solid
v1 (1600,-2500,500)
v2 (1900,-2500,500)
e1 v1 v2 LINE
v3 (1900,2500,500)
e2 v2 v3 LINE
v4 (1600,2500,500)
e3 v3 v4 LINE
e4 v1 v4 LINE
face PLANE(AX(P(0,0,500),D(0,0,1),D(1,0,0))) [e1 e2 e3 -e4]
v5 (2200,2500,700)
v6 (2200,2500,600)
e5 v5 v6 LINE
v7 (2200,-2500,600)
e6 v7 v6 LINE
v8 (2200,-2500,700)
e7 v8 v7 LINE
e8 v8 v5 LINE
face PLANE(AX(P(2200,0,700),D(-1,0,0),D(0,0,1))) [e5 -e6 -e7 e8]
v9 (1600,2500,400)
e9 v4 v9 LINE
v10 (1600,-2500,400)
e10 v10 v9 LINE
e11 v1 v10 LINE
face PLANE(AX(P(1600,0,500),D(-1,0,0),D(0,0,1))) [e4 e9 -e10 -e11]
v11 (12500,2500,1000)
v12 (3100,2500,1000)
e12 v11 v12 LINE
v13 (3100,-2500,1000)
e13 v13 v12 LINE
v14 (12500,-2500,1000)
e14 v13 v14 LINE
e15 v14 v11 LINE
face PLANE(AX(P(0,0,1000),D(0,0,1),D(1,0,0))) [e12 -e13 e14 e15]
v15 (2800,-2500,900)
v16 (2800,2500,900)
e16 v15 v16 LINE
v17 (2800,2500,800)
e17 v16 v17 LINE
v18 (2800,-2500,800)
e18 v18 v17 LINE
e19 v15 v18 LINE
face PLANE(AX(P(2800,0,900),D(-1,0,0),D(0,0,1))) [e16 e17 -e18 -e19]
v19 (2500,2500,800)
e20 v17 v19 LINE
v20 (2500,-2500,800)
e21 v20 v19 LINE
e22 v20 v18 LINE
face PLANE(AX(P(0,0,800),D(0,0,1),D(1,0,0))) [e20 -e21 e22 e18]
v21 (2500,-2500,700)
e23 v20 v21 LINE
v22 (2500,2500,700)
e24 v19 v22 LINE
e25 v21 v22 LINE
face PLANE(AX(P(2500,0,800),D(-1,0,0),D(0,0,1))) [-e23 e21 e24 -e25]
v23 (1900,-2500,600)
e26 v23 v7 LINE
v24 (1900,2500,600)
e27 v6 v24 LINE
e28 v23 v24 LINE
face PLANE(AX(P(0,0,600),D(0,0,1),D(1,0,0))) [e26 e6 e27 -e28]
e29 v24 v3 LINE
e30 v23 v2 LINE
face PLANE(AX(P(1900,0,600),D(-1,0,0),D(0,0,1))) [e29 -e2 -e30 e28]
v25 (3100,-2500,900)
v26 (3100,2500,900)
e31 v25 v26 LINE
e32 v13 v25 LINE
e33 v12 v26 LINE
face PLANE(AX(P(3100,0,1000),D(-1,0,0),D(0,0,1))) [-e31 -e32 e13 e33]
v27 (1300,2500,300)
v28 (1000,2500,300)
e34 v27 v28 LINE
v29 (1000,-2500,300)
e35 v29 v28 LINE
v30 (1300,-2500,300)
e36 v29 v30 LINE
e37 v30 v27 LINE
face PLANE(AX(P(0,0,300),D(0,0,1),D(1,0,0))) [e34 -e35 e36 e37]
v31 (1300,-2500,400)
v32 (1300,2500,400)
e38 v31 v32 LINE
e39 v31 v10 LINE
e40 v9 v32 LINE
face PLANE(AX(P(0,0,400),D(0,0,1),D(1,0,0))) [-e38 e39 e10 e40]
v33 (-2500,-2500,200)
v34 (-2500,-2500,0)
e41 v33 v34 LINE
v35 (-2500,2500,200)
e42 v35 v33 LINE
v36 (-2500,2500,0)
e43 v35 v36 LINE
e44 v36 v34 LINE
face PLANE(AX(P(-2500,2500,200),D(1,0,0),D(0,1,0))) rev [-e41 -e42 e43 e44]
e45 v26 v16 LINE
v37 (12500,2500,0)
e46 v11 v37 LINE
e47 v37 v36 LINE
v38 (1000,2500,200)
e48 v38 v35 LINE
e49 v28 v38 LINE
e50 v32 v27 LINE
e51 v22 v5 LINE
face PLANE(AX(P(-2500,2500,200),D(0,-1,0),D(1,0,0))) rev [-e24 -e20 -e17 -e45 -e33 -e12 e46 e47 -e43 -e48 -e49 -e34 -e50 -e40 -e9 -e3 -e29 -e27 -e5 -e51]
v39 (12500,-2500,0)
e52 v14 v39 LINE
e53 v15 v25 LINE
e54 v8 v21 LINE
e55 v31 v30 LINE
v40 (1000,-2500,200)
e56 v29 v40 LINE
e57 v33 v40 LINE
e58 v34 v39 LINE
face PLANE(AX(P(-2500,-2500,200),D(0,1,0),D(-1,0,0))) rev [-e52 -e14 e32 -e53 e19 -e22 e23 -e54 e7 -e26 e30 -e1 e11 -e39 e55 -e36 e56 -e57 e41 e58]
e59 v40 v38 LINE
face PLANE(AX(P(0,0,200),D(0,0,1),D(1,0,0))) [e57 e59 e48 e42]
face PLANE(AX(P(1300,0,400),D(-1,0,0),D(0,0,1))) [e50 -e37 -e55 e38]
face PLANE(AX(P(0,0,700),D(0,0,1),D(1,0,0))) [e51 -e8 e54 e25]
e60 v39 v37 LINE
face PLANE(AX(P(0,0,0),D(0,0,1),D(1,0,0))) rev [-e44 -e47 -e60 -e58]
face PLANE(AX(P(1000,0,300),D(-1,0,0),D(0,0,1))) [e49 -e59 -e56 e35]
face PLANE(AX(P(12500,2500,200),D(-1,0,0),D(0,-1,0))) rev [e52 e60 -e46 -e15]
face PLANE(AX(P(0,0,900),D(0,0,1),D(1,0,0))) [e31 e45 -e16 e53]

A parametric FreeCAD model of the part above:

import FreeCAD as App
import Part
import Sketcher
from FreeCAD import Vector


def add_polygon(sketch, points):
    """Adds a closed chain of lines whose ends are joined by coincident constraints."""
    first, n = sketch.GeometryCount, len(points)
    for a, b in zip(points, points[1:] + points[:1]):
        sketch.addGeometry(Part.LineSegment(App.Vector(*a, 0), App.Vector(*b, 0)), False)
    for i in range(n):
        sketch.addConstraint(Sketcher.Constraint("Coincident", first + i, 2, first + (i + 1) % n, 1))

doc = App.newDocument("Part")
params = doc.addObject("Spreadsheet::Sheet", "Params")
for row, (alias, value) in enumerate([
    ("sketch1_width", "15000 mm"),
    ("sketch1_height", "5000 mm"),
    ("pad1_length", "200 mm"),
    ("sketch2_width", "300 mm"),
    ("sketch2_height", "5000 mm"),
    ("pad2_length", "100 mm"),
    ("sketch3_width", "300 mm"),
    ("sketch3_height", "5000 mm"),
    ("pad3_length", "200 mm"),
    ("sketch4_width", "300 mm"),
    ("sketch4_height", "5000 mm"),
    ("pad4_length", "300 mm"),
    ("sketch5_width", "300 mm"),
    ("sketch5_height", "5000 mm"),
    ("pad5_length", "400 mm"),
    ("sketch6_width", "300 mm"),
    ("sketch6_height", "5000 mm"),
    ("pad6_length", "500 mm"),
    ("sketch7_width", "300 mm"),
    ("sketch7_height", "5000 mm"),
    ("pad7_length", "600 mm"),
    ("sketch8_width", "300 mm"),
    ("sketch8_height", "5000 mm"),
    ("pad8_length", "700 mm"),
    ("sketch9_width", "300 mm"),
    ("sketch9_height", "5000 mm"),
    ("pad9_length", "800 mm"),
    ("sketch10_width", "9100 mm"),
    ("sketch10_height", "5000 mm"),
    ("pad10_length", "800 mm"),
], start=1):
    params.set(f"A{row}", alias)
    params.set(f"B{row}", "=" + value)
    params.setAlias(f"B{row}", alias)

body = doc.addObject("PartDesign::Body", "Body")

# Sketch on XY plane
sketch1 = doc.addObject("Sketcher::SketchObject", "Sketch")
body.addObject(sketch1)
sketch1.AttachmentSupport = (doc.XY_Plane, [""])
sketch1.MapMode = "FlatFace"
add_polygon(sketch1, [(-2500, 2500), (-2500, -2500), (12500, -2500), (12500, 2500)])  # lines 0-3
sketch1.addConstraint(Sketcher.Constraint("Vertical", 0))
sketch1.addConstraint(Sketcher.Constraint("Horizontal", 1))
sketch1.addConstraint(Sketcher.Constraint("Vertical", 2))
sketch1.addConstraint(Sketcher.Constraint("Horizontal", 3))
sketch1.addConstraint(Sketcher.Constraint("DistanceX", 1, 1, 1, 2, 15000.0))
sketch1.addConstraint(Sketcher.Constraint("DistanceY", 0, 2, 0, 1, 5000.0))
sketch1.addConstraint(Sketcher.Constraint("DistanceX", 0, 2, -1, 1, 2500.0))
sketch1.addConstraint(Sketcher.Constraint("DistanceY", 0, 2, -1, 1, 2500.0))
sketch1.setExpression("Constraints[8]", "Params.sketch1_width")
sketch1.setExpression("Constraints[9]", "Params.sketch1_height")
pad1 = doc.addObject("PartDesign::Pad", "Pad")
body.addObject(pad1)
pad1.Profile = sketch1
pad1.setExpression("Length", "Params.pad1_length")

# Sketch on XY plane
sketch2 = doc.addObject("Sketcher::SketchObject", "Sketch001")
body.addObject(sketch2)
sketch2.AttachmentSupport = (doc.XY_Plane, [""])
sketch2.MapMode = "FlatFace"
sketch2.AttachmentOffset = App.Placement(Vector(0, 0, 200), App.Rotation())
add_polygon(sketch2, [(1000, 2500), (1000, -2500), (1300, -2500), (1300, 2500)])  # lines 0-3
sketch2.addConstraint(Sketcher.Constraint("Vertical", 0))
sketch2.addConstraint(Sketcher.Constraint("Horizontal", 1))
sketch2.addConstraint(Sketcher.Constraint("Vertical", 2))
sketch2.addConstraint(Sketcher.Constraint("Horizontal", 3))
sketch2.addConstraint(Sketcher.Constraint("DistanceX", 1, 1, 1, 2, 300.0))
sketch2.addConstraint(Sketcher.Constraint("DistanceY", 0, 2, 0, 1, 5000.0))
sketch2.addConstraint(Sketcher.Constraint("DistanceX", -1, 1, 0, 2, 1000.0))
sketch2.addConstraint(Sketcher.Constraint("DistanceY", 0, 2, -1, 1, 2500.0))
sketch2.setExpression("Constraints[8]", "Params.sketch2_width")
sketch2.setExpression("Constraints[9]", "Params.sketch2_height")
pad2 = doc.addObject("PartDesign::Pad", "Pad001")
body.addObject(pad2)
pad2.Profile = sketch2
pad2.setExpression("Length", "Params.pad2_length")

# Sketch on XY plane
sketch3 = doc.addObject("Sketcher::SketchObject", "Sketch002")
body.addObject(sketch3)
sketch3.AttachmentSupport = (doc.XY_Plane, [""])
sketch3.MapMode = "FlatFace"
sketch3.AttachmentOffset = App.Placement(Vector(0, 0, 200), App.Rotation())
add_polygon(sketch3, [(1300, 2500), (1300, -2500), (1600, -2500), (1600, 2500)])  # lines 0-3
sketch3.addConstraint(Sketcher.Constraint("Vertical", 0))
sketch3.addConstraint(Sketcher.Constraint("Horizontal", 1))
sketch3.addConstraint(Sketcher.Constraint("Vertical", 2))
sketch3.addConstraint(Sketcher.Constraint("Horizontal", 3))
sketch3.addConstraint(Sketcher.Constraint("DistanceX", 1, 1, 1, 2, 300.0))
sketch3.addConstraint(Sketcher.Constraint("DistanceY", 0, 2, 0, 1, 5000.0))
sketch3.addConstraint(Sketcher.Constraint("DistanceX", -1, 1, 0, 2, 1300.0))
sketch3.addConstraint(Sketcher.Constraint("DistanceY", 0, 2, -1, 1, 2500.0))
sketch3.setExpression("Constraints[8]", "Params.sketch3_width")
sketch3.setExpression("Constraints[9]", "Params.sketch3_height")
pad3 = doc.addObject("PartDesign::Pad", "Pad002")
body.addObject(pad3)
pad3.Profile = sketch3
pad3.setExpression("Length", "Params.pad3_length")

# Sketch on XY plane
sketch4 = doc.addObject("Sketcher::SketchObject", "Sketch003")
body.addObject(sketch4)
sketch4.AttachmentSupport = (doc.XY_Plane, [""])
sketch4.MapMode = "FlatFace"
sketch4.AttachmentOffset = App.Placement(Vector(0, 0, 200), App.Rotation())
add_polygon(sketch4, [(1600, 2500), (1600, -2500), (1900, -2500), (1900, 2500)])  # lines 0-3
sketch4.addConstraint(Sketcher.Constraint("Vertical", 0))
sketch4.addConstraint(Sketcher.Constraint("Horizontal", 1))
sketch4.addConstraint(Sketcher.Constraint("Vertical", 2))
sketch4.addConstraint(Sketcher.Constraint("Horizontal", 3))
sketch4.addConstraint(Sketcher.Constraint("DistanceX", 1, 1, 1, 2, 300.0))
sketch4.addConstraint(Sketcher.Constraint("DistanceY", 0, 2, 0, 1, 5000.0))
sketch4.addConstraint(Sketcher.Constraint("DistanceX", -1, 1, 0, 2, 1600.0))
sketch4.addConstraint(Sketcher.Constraint("DistanceY", 0, 2, -1, 1, 2500.0))
sketch4.setExpression("Constraints[8]", "Params.sketch4_width")
sketch4.setExpression("Constraints[9]", "Params.sketch4_height")
pad4 = doc.addObject("PartDesign::Pad", "Pad003")
body.addObject(pad4)
pad4.Profile = sketch4
pad4.setExpression("Length", "Params.pad4_length")

# Sketch on XY plane
sketch5 = doc.addObject("Sketcher::SketchObject", "Sketch004")
body.addObject(sketch5)
sketch5.AttachmentSupport = (doc.XY_Plane, [""])
sketch5.MapMode = "FlatFace"
sketch5.AttachmentOffset = App.Placement(Vector(0, 0, 200), App.Rotation())
add_polygon(sketch5, [(1900, 2500), (1900, -2500), (2200, -2500), (2200, 2500)])  # lines 0-3
sketch5.addConstraint(Sketcher.Constraint("Vertical", 0))
sketch5.addConstraint(Sketcher.Constraint("Horizontal", 1))
sketch5.addConstraint(Sketcher.Constraint("Vertical", 2))
sketch5.addConstraint(Sketcher.Constraint("Horizontal", 3))
sketch5.addConstraint(Sketcher.Constraint("DistanceX", 1, 1, 1, 2, 300.0))
sketch5.addConstraint(Sketcher.Constraint("DistanceY", 0, 2, 0, 1, 5000.0))
sketch5.addConstraint(Sketcher.Constraint("DistanceX", -1, 1, 0, 2, 1900.0))
sketch5.addConstraint(Sketcher.Constraint("DistanceY", 0, 2, -1, 1, 2500.0))
sketch5.setExpression("Constraints[8]", "Params.sketch5_width")
sketch5.setExpression("Constraints[9]", "Params.sketch5_height")
pad5 = doc.addObject("PartDesign::Pad", "Pad004")
body.addObject(pad5)
pad5.Profile = sketch5
pad5.setExpression("Length", "Params.pad5_length")

# Sketch on XY plane
sketch6 = doc.addObject("Sketcher::SketchObject", "Sketch005")
body.addObject(sketch6)
sketch6.AttachmentSupport = (doc.XY_Plane, [""])
sketch6.MapMode = "FlatFace"
sketch6.AttachmentOffset = App.Placement(Vector(0, 0, 200), App.Rotation())
add_polygon(sketch6, [(2200, 2500), (2200, -2500), (2500, -2500), (2500, 2500)])  # lines 0-3
sketch6.addConstraint(Sketcher.Constraint("Vertical", 0))
sketch6.addConstraint(Sketcher.Constraint("Horizontal", 1))
sketch6.addConstraint(Sketcher.Constraint("Vertical", 2))
sketch6.addConstraint(Sketcher.Constraint("Horizontal", 3))
sketch6.addConstraint(Sketcher.Constraint("DistanceX", 1, 1, 1, 2, 300.0))
sketch6.addConstraint(Sketcher.Constraint("DistanceY", 0, 2, 0, 1, 5000.0))
sketch6.addConstraint(Sketcher.Constraint("DistanceX", -1, 1, 0, 2, 2200.0))
sketch6.addConstraint(Sketcher.Constraint("DistanceY", 0, 2, -1, 1, 2500.0))
sketch6.setExpression("Constraints[8]", "Params.sketch6_width")
sketch6.setExpression("Constraints[9]", "Params.sketch6_height")
pad6 = doc.addObject("PartDesign::Pad", "Pad005")
body.addObject(pad6)
pad6.Profile = sketch6
pad6.setExpression("Length", "Params.pad6_length")

# Sketch on XY plane
sketch7 = doc.addObject("Sketcher::SketchObject", "Sketch006")
body.addObject(sketch7)
sketch7.AttachmentSupport = (doc.XY_Plane, [""])
sketch7.MapMode = "FlatFace"
sketch7.AttachmentOffset = App.Placement(Vector(0, 0, 200), App.Rotation())
add_polygon(sketch7, [(2500, 2500), (2500, -2500), (2800, -2500), (2800, 2500)])  # lines 0-3
sketch7.addConstraint(Sketcher.Constraint("Vertical", 0))
sketch7.addConstraint(Sketcher.Constraint("Horizontal", 1))
sketch7.addConstraint(Sketcher.Constraint("Vertical", 2))
sketch7.addConstraint(Sketcher.Constraint("Horizontal", 3))
sketch7.addConstraint(Sketcher.Constraint("DistanceX", 1, 1, 1, 2, 300.0))
sketch7.addConstraint(Sketcher.Constraint("DistanceY", 0, 2, 0, 1, 5000.0))
sketch7.addConstraint(Sketcher.Constraint("DistanceX", -1, 1, 0, 2, 2500.0))
sketch7.addConstraint(Sketcher.Constraint("DistanceY", 0, 2, -1, 1, 2500.0))
sketch7.setExpression("Constraints[8]", "Params.sketch7_width")
sketch7.setExpression("Constraints[9]", "Params.sketch7_height")
pad7 = doc.addObject("PartDesign::Pad", "Pad006")
body.addObject(pad7)
pad7.Profile = sketch7
pad7.setExpression("Length", "Params.pad7_length")

# Sketch on XY plane
sketch8 = doc.addObject("Sketcher::SketchObject", "Sketch007")
body.addObject(sketch8)
sketch8.AttachmentSupport = (doc.XY_Plane, [""])
sketch8.MapMode = "FlatFace"
sketch8.AttachmentOffset = App.Placement(Vector(0, 0, 200), App.Rotation())
add_polygon(sketch8, [(2800, 2500), (2800, -2500), (3100, -2500), (3100, 2500)])  # lines 0-3
sketch8.addConstraint(Sketcher.Constraint("Vertical", 0))
sketch8.addConstraint(Sketcher.Constraint("Horizontal", 1))
sketch8.addConstraint(Sketcher.Constraint("Vertical", 2))
sketch8.addConstraint(Sketcher.Constraint("Horizontal", 3))
sketch8.addConstraint(Sketcher.Constraint("DistanceX", 1, 1, 1, 2, 300.0))
sketch8.addConstraint(Sketcher.Constraint("DistanceY", 0, 2, 0, 1, 5000.0))
sketch8.addConstraint(Sketcher.Constraint("DistanceX", -1, 1, 0, 2, 2800.0))
sketch8.addConstraint(Sketcher.Constraint("DistanceY", 0, 2, -1, 1, 2500.0))
sketch8.setExpression("Constraints[8]", "Params.sketch8_width")
sketch8.setExpression("Constraints[9]", "Params.sketch8_height")
pad8 = doc.addObject("PartDesign::Pad", "Pad007")
body.addObject(pad8)
pad8.Profile = sketch8
pad8.setExpression("Length", "Params.pad8_length")

# Sketch on XY plane
sketch9 = doc.addObject("Sketcher::SketchObject", "Sketch008")
body.addObject(sketch9)
sketch9.AttachmentSupport = (doc.XY_Plane, [""])
sketch9.MapMode = "FlatFace"
sketch9.AttachmentOffset = App.Placement(Vector(0, 0, 200), App.Rotation())
add_polygon(sketch9, [(3100, 2500), (3100, -2500), (3400, -2500), (3400, 2500)])  # lines 0-3
sketch9.addConstraint(Sketcher.Constraint("Vertical", 0))
sketch9.addConstraint(Sketcher.Constraint("Horizontal", 1))
sketch9.addConstraint(Sketcher.Constraint("Vertical", 2))
sketch9.addConstraint(Sketcher.Constraint("Horizontal", 3))
sketch9.addConstraint(Sketcher.Constraint("DistanceX", 1, 1, 1, 2, 300.0))
sketch9.addConstraint(Sketcher.Constraint("DistanceY", 0, 2, 0, 1, 5000.0))
sketch9.addConstraint(Sketcher.Constraint("DistanceX", -1, 1, 0, 2, 3100.0))
sketch9.addConstraint(Sketcher.Constraint("DistanceY", 0, 2, -1, 1, 2500.0))
sketch9.setExpression("Constraints[8]", "Params.sketch9_width")
sketch9.setExpression("Constraints[9]", "Params.sketch9_height")
pad9 = doc.addObject("PartDesign::Pad", "Pad008")
body.addObject(pad9)
pad9.Profile = sketch9
pad9.setExpression("Length", "Params.pad9_length")

# Sketch on XY plane
sketch10 = doc.addObject("Sketcher::SketchObject", "Sketch009")
body.addObject(sketch10)
sketch10.AttachmentSupport = (doc.XY_Plane, [""])
sketch10.MapMode = "FlatFace"
sketch10.AttachmentOffset = App.Placement(Vector(0, 0, 200), App.Rotation())
add_polygon(sketch10, [(3400, 2500), (3400, -2500), (12500, -2500), (12500, 2500)])  # lines 0-3
sketch10.addConstraint(Sketcher.Constraint("Vertical", 0))
sketch10.addConstraint(Sketcher.Constraint("Horizontal", 1))
sketch10.addConstraint(Sketcher.Constraint("Vertical", 2))
sketch10.addConstraint(Sketcher.Constraint("Horizontal", 3))
sketch10.addConstraint(Sketcher.Constraint("DistanceX", 1, 1, 1, 2, 9100.0))
sketch10.addConstraint(Sketcher.Constraint("DistanceY", 0, 2, 0, 1, 5000.0))
sketch10.addConstraint(Sketcher.Constraint("DistanceX", -1, 1, 0, 2, 3400.0))
sketch10.addConstraint(Sketcher.Constraint("DistanceY", 0, 2, -1, 1, 2500.0))
sketch10.setExpression("Constraints[8]", "Params.sketch10_width")
sketch10.setExpression("Constraints[9]", "Params.sketch10_height")
pad10 = doc.addObject("PartDesign::Pad", "Pad009")
body.addObject(pad10)
pad10.Profile = sketch10
pad10.setExpression("Length", "Params.pad10_length")

doc.recompute()
